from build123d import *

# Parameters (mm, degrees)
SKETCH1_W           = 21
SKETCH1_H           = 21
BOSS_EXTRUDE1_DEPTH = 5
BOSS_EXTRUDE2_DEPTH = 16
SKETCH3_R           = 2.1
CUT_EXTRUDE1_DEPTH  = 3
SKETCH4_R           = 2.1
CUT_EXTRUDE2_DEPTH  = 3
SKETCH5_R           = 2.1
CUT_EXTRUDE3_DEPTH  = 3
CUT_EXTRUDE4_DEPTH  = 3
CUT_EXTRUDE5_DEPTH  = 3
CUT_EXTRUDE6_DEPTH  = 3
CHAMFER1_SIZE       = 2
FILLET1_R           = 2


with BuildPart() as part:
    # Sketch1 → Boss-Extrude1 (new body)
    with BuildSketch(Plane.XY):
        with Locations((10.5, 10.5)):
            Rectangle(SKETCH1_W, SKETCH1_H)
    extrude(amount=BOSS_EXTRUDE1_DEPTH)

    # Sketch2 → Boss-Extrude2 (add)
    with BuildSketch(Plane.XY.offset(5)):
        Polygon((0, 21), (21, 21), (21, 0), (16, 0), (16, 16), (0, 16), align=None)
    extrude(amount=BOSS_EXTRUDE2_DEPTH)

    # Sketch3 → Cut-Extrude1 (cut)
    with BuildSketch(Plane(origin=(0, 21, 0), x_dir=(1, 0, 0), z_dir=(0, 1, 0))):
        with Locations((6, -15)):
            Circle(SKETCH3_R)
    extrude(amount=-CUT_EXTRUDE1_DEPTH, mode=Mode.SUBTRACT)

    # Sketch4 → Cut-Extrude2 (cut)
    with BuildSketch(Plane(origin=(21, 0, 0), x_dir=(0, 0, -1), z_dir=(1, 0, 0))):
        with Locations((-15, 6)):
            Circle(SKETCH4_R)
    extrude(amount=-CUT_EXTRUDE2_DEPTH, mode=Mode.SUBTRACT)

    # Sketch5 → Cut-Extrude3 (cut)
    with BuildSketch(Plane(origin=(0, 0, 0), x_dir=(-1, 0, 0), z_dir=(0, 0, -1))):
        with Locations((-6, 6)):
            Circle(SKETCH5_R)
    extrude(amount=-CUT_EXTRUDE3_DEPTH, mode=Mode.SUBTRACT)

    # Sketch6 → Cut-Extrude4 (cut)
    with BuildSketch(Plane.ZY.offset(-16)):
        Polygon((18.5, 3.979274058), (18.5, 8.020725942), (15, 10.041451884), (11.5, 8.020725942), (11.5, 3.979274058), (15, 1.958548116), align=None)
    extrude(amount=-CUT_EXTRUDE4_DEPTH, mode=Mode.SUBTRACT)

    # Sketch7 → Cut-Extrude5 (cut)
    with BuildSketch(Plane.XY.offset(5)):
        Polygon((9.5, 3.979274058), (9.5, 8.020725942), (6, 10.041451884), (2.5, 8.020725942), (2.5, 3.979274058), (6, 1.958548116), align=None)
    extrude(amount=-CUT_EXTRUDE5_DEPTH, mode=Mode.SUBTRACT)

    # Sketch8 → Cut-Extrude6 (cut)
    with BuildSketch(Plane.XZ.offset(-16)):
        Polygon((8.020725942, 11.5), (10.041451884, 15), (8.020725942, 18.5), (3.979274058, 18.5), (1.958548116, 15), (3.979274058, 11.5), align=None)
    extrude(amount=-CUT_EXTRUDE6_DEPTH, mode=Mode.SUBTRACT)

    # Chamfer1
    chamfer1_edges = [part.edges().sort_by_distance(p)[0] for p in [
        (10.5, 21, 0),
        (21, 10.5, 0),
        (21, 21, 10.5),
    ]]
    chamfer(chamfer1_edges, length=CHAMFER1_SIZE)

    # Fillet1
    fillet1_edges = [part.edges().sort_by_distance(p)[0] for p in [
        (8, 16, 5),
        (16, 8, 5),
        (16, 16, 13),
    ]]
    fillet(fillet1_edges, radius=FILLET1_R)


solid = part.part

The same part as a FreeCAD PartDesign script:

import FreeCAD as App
import Part
import Sketcher
from FreeCAD import Vector
Q = App.Units.Quantity


def edges_at(feature, points):
    """Names of the edges that pass closest to the given points."""
    edges = feature.Shape.Edges
    near = lambda p: min(range(len(edges)), key=lambda i: edges[i].distToShape(Part.Vertex(*p))[0])
    return sorted({f"Edge{near(p) + 1}" for p in points})

doc = App.newDocument("Part")
body = doc.addObject("PartDesign::Body", "Body")

sketch1 = body.newObject("Sketcher::SketchObject", "Sketch")
sketch1.AttachmentSupport = (doc.getObject("XY_Plane"), [""])
sketch1.MapMode = "FlatFace"
sketch1.addGeometry([
    Part.LineSegment(Vector(0, 21, 0), Vector(0, 0, 0)),
    Part.LineSegment(Vector(0, 0, 0), Vector(21, 0, 0)),
    Part.LineSegment(Vector(21, 0, 0), Vector(21, 21, 0)),
    Part.LineSegment(Vector(21, 21, 0), Vector(0, 21, 0)),
], False)
sketch1.addConstraint([
    Sketcher.Constraint("Coincident", 0, 2, 1, 1),
    Sketcher.Constraint("Coincident", 1, 2, 2, 1),
    Sketcher.Constraint("Coincident", 2, 2, 3, 1),
    Sketcher.Constraint("Coincident", 3, 2, 0, 1),
    Sketcher.Constraint("Vertical", 0),
    Sketcher.Constraint("Horizontal", 1),
    Sketcher.Constraint("Vertical", 2),
    Sketcher.Constraint("Horizontal", 3),
    Sketcher.Constraint("Coincident", 0, 2, -1, 1),
    Sketcher.Constraint("Equal", 3, 0),
    Sketcher.Constraint("DistanceX", 1, 1, 1, 2, 21.0),
])
pad1 = body.newObject("PartDesign::Pad", "Pad")
pad1.Profile = sketch1
pad1.Length = 5

sketch2 = body.newObject("Sketcher::SketchObject", "Sketch001")
sketch2.AttachmentSupport = (doc.getObject("XY_Plane"), [""])
sketch2.MapMode = "FlatFace"
sketch2.AttachmentOffset = App.Placement(Vector(0, 0, 5), App.Rotation())
sketch2.addGeometry([
    Part.LineSegment(Vector(21, 21, 0), Vector(0, 21, 0)),
    Part.LineSegment(Vector(0, 21, 0), Vector(0, 16, 0)),
    Part.LineSegment(Vector(0, 16, 0), Vector(16, 16, 0)),
    Part.LineSegment(Vector(16, 16, 0), Vector(16, 0, 0)),
    Part.LineSegment(Vector(16, 0, 0), Vector(21, 0, 0)),
    Part.LineSegment(Vector(21, 0, 0), Vector(21, 21, 0)),
], False)
sketch2.addConstraint([
    Sketcher.Constraint("Coincident", 0, 2, 1, 1),
    Sketcher.Constraint("Coincident", 1, 2, 2, 1),
    Sketcher.Constraint("Coincident", 2, 2, 3, 1),
    Sketcher.Constraint("Coincident", 3, 2, 4, 1),
    Sketcher.Constraint("Coincident", 4, 2, 5, 1),
    Sketcher.Constraint("Coincident", 5, 2, 0, 1),
    Sketcher.Constraint("Horizontal", 0),
    Sketcher.Constraint("Vertical", 1),
    Sketcher.Constraint("Horizontal", 2),
    Sketcher.Constraint("Vertical", 3),
    Sketcher.Constraint("Horizontal", 4),
    Sketcher.Constraint("Vertical", 5),
    Sketcher.Constraint("PointOnObject", 0, 2, -2),
    Sketcher.Constraint("PointOnObject", 3, 2, -1),
    Sketcher.Constraint("Equal", 4, 1),
    Sketcher.Constraint("Equal", 2, 3),
    Sketcher.Constraint("DistanceX", 0, 2, 0, 1, 21.0),
    Sketcher.Constraint("DistanceX", 2, 1, 2, 2, 16.0),
])
pad2 = body.newObject("PartDesign::Pad", "Pad001")
pad2.Profile = sketch2
pad2.Length = 16

sketch3 = body.newObject("Sketcher::SketchObject", "Sketch002")
sketch3.AttachmentSupport = (doc.getObject("XZ_Plane"), [""])
sketch3.MapMode = "FlatFace"
sketch3.AttachmentOffset = App.Placement(Vector(0, 0, -21), App.Rotation())
sketch3.addGeometry(Part.Circle(Vector(6, 15, 0), Vector(0, 0, 1), 2.1), False)
sketch3.addConstraint([
    Sketcher.Constraint("Diameter", 0, 4.2),
    Sketcher.Constraint("DistanceX", -1, 1, 0, 3, 6.0),
    Sketcher.Constraint("DistanceY", -1, 1, 0, 3, 15.0),
])
pocket1 = body.newObject("PartDesign::Pocket", "Pocket")
pocket1.Profile = sketch3
pocket1.Length = 3
pocket1.Reversed = True

sketch4 = body.newObject("Sketcher::SketchObject", "Sketch003")
sketch4.AttachmentSupport = (doc.getObject("YZ_Plane"), [""])
sketch4.MapMode = "FlatFace"
sketch4.AttachmentOffset = App.Placement(Vector(0, 0, 21), App.Rotation())
sketch4.addGeometry(Part.Circle(Vector(6, 15, 0), Vector(0, 0, 1), 2.1), False)
sketch4.addConstraint([
    Sketcher.Constraint("Diameter", 0, 4.2),
    Sketcher.Constraint("DistanceX", -1, 1, 0, 3, 6.0),
    Sketcher.Constraint("DistanceY", -1, 1, 0, 3, 15.0),
])
pocket2 = body.newObject("PartDesign::Pocket", "Pocket001")
pocket2.Profile = sketch4
pocket2.Length = 3

sketch5 = body.newObject("Sketcher::SketchObject", "Sketch004")
sketch5.AttachmentSupport = (doc.getObject("XY_Plane"), [""])
sketch5.MapMode = "FlatFace"
sketch5.addGeometry(Part.Circle(Vector(6, 6, 0), Vector(0, 0, 1), 2.1), False)
sketch5.addConstraint([
    Sketcher.Constraint("Diameter", 0, 4.2),
    Sketcher.Constraint("DistanceX", -1, 1, 0, 3, 6.0),
    Sketcher.Constraint("DistanceY", -1, 1, 0, 3, 6.0),
])
pocket3 = body.newObject("PartDesign::Pocket", "Pocket002")
pocket3.Profile = sketch5
pocket3.Length = 3
pocket3.Reversed = True

sketch6 = body.newObject("Sketcher::SketchObject", "Sketch005")
sketch6.AttachmentSupport = (doc.getObject("YZ_Plane"), [""])
sketch6.MapMode = "FlatFace"
sketch6.AttachmentOffset = App.Placement(Vector(0, 0, 16), App.Rotation())
sketch6.addGeometry([
    Part.LineSegment(Vector(4, 18.5, 0), Vector(8, 18.5, 0)),
    Part.LineSegment(Vector(8, 18.5, 0), Vector(10, 15, 0)),
    Part.LineSegment(Vector(10, 15, 0), Vector(8, 11.5, 0)),
    Part.LineSegment(Vector(8, 11.5, 0), Vector(4, 11.5, 0)),
    Part.LineSegment(Vector(4, 11.5, 0), Vector(2, 15, 0)),
    Part.LineSegment(Vector(2, 15, 0), Vector(4, 18.5, 0)),
], False)
sketch6.addConstraint([
    Sketcher.Constraint("Coincident", 0, 2, 1, 1),
    Sketcher.Constraint("Coincident", 1, 2, 2, 1),
    Sketcher.Constraint("Coincident", 2, 2, 3, 1),
    Sketcher.Constraint("Coincident", 3, 2, 4, 1),
    Sketcher.Constraint("Coincident", 4, 2, 5, 1),
    Sketcher.Constraint("Coincident", 5, 2, 0, 1),
    Sketcher.Constraint("Horizontal", 0),
    Sketcher.Constraint("Horizontal", 3),
    Sketcher.Constraint("Parallel", 1, 4),
    Sketcher.Constraint("Parallel", 2, 5),
    Sketcher.Constraint("Horizontal", 1, 2, 4, 2),
    Sketcher.Constraint("Vertical", 0, 2, 2, 2),
    Sketcher.Constraint("Vertical", 3, 2, 5, 2),
    Sketcher.Constraint("Angle", 1, Q("-60 deg")),
    Sketcher.Constraint("DistanceY", -1, 1, 1, 2, 15.0),
    Sketcher.Constraint("DistanceY", 2, 2, 0, 2, 7.0),
    Sketcher.Constraint("DistanceX", 0, 1, 0, 2, 4.041452),
    Sketcher.Constraint("DistanceX", -1, 1, 1, 2, 10.041452),
])
pocket4 = body.newObject("PartDesign::Pocket", "Pocket003")
pocket4.Profile = sketch6
pocket4.Length = 3
pocket4.Reversed = True

sketch7 = body.newObject("Sketcher::SketchObject", "Sketch006")
sketch7.AttachmentSupport = (doc.getObject("XY_Plane"), [""])
sketch7.MapMode = "FlatFace"
sketch7.AttachmentOffset = App.Placement(Vector(0, 0, 5), App.Rotation())
sketch7.addGeometry([
    Part.LineSegment(Vector(9.5, 4, 0), Vector(9.5, 8, 0)),
    Part.LineSegment(Vector(9.5, 8, 0), Vector(6, 10, 0)),
    Part.LineSegment(Vector(6, 10, 0), Vector(2.5, 8, 0)),
    Part.LineSegment(Vector(2.5, 8, 0), Vector(2.5, 4, 0)),
    Part.LineSegment(Vector(2.5, 4, 0), Vector(6, 2, 0)),
    Part.LineSegment(Vector(6, 2, 0), Vector(9.5, 4, 0)),
], False)
sketch7.addConstraint([
    Sketcher.Constraint("Coincident", 0, 2, 1, 1),
    Sketcher.Constraint("Coincident", 1, 2, 2, 1),
    Sketcher.Constraint("Coincident", 2, 2, 3, 1),
    Sketcher.Constraint("Coincident", 3, 2, 4, 1),
    Sketcher.Constraint("Coincident", 4, 2, 5, 1),
    Sketcher.Constraint("Coincident", 5, 2, 0, 1),
    Sketcher.Constraint("Vertical", 0),
    Sketcher.Constraint("Vertical", 3),
    Sketcher.Constraint("Parallel", 1, 4),
    Sketcher.Constraint("Parallel", 2, 5),
    Sketcher.Constraint("Horizontal", 0, 2, 2, 2),
    Sketcher.Constraint("Horizontal", 3, 2, 5, 2),
    Sketcher.Constraint("Vertical", 1, 2, 4, 2),
    Sketcher.Constraint("Angle", 1, Q("150 deg")),
    Sketcher.Constraint("DistanceX", -1, 1, 1, 2, 6.0),
    Sketcher.Constraint("DistanceX", 2, 2, 0, 2, 7.0),
    Sketcher.Constraint("DistanceY", 0, 1, 0, 2, 4.041452),
    Sketcher.Constraint("DistanceY", -1, 1, 1, 2, 10.041452),
])
pocket5 = body.newObject("PartDesign::Pocket", "Pocket004")
pocket5.Profile = sketch7
pocket5.Length = 3

sketch8 = body.newObject("Sketcher::SketchObject", "Sketch007")
sketch8.AttachmentSupport = (doc.getObject("XZ_Plane"), [""])
sketch8.MapMode = "FlatFace"
sketch8.AttachmentOffset = App.Placement(Vector(0, 0, -16), App.Rotation())
sketch8.addGeometry([
    Part.LineSegment(Vector(8, 11.5, 0), Vector(10, 15, 0)),
    Part.LineSegment(Vector(10, 15, 0), Vector(8, 18.5, 0)),
    Part.LineSegment(Vector(8, 18.5, 0), Vector(4, 18.5, 0)),
    Part.LineSegment(Vector(4, 18.5, 0), Vector(2, 15, 0)),
    Part.LineSegment(Vector(2, 15, 0), Vector(4, 11.5, 0)),
    Part.LineSegment(Vector(4, 11.5, 0), Vector(8, 11.5, 0)),
], False)
sketch8.addConstraint([
    Sketcher.Constraint("Coincident", 0, 2, 1, 1),
    Sketcher.Constraint("Coincident", 1, 2, 2, 1),
    Sketcher.Constraint("Coincident", 2, 2, 3, 1),
    Sketcher.Constraint("Coincident", 3, 2, 4, 1),
    Sketcher.Constraint("Coincident", 4, 2, 5, 1),
    Sketcher.Constraint("Coincident", 5, 2, 0, 1),
    Sketcher.Constraint("Horizontal", 2),
    Sketcher.Constraint("Horizontal", 5),
    Sketcher.Constraint("Parallel", 0, 3),
    Sketcher.Constraint("Parallel", 1, 4),
    Sketcher.Constraint("Horizontal", 0, 2, 3, 2),
    Sketcher.Constraint("Vertical", 2, 2, 4, 2),
    Sketcher.Constraint("Vertical", 1, 2, 5, 2),
    Sketcher.Constraint("Angle", 0, Q("60 deg")),
    Sketcher.Constraint("DistanceY", -1, 1, 0, 2, 15.0),
    Sketcher.Constraint("DistanceY", 4, 2, 2, 2, 7.0),
    Sketcher.Constraint("DistanceX", 2, 2, 2, 1, 4.041452),
    Sketcher.Constraint("DistanceX", -1, 1, 0, 2, 10.041452),
])
pocket6 = body.newObject("PartDesign::Pocket", "Pocket005")
pocket6.Profile = sketch8
pocket6.Length = 3
doc.recompute()

chamfer = body.newObject("PartDesign::Chamfer", "Chamfer")
chamfer.Base = (pocket6, edges_at(pocket6, [(10.5, 21, 0), (21, 10.5, 0), (21, 21, 10.5)]))
chamfer.Size = 2
doc.recompute()

fillet = body.newObject("PartDesign::Fillet", "Fillet")
fillet.Base = (chamfer, edges_at(chamfer, [(8, 16, 5), (16, 8, 5), (16, 16, 13)]))
fillet.Radius = 2

doc.recompute()
